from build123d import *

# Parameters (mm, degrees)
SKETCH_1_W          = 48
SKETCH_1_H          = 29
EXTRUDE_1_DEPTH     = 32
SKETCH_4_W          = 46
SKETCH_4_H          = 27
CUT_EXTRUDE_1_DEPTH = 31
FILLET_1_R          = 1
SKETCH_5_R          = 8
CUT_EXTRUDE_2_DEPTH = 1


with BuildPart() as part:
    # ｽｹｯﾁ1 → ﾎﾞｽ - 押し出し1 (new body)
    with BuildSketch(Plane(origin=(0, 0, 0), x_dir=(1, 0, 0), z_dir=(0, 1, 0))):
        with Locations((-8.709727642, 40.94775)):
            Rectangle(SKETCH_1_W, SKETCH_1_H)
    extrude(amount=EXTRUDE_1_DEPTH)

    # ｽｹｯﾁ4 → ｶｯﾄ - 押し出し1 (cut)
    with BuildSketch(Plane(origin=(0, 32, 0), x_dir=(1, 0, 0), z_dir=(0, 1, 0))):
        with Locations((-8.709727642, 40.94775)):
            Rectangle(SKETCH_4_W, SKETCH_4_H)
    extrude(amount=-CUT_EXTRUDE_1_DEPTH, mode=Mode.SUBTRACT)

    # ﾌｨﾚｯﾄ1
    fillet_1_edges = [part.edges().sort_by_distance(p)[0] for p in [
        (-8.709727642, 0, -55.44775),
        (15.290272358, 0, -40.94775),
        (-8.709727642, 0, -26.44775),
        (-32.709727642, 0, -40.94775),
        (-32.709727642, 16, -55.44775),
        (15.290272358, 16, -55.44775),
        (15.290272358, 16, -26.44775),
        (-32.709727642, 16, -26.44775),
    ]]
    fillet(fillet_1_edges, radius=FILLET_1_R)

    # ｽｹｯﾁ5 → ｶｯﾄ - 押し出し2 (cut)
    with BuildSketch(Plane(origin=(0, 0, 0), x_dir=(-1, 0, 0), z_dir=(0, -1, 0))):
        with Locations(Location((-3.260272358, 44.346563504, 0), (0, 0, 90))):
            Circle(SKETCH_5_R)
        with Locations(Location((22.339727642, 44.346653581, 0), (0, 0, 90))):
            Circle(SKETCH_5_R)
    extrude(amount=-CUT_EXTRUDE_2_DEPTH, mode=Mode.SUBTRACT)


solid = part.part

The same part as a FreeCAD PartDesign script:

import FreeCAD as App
import Part
import Sketcher

V = App.Vector


def edges_at(feature, points):
    """Names of the edges that pass closest to the given points."""
    edges = feature.Shape.Edges
    near = lambda p: min(range(len(edges)), key=lambda i: edges[i].distToShape(Part.Vertex(*p))[0])
    return sorted({f"Edge{near(p) + 1}" for p in points})


def add_polygon(sketch, points):
    """Adds a closed chain of lines whose ends are joined by coincident constraints."""
    first, n = sketch.GeometryCount, len(points)
    for a, b in zip(points, points[1:] + points[:1]):
        sketch.addGeometry(Part.LineSegment(App.Vector(*a, 0), App.Vector(*b, 0)), False)
    for i in range(n):
        sketch.addConstraint(Sketcher.Constraint("Coincident", first + i, 2, first + (i + 1) % n, 1))

doc = App.newDocument("Part")
body = doc.addObject("PartDesign::Body", "Body")

# Sketch on XZ plane
sketch1 = body.newObject("Sketcher::SketchObject", "Sketch")
sketch1.AttachmentSupport = (doc.getObject("XZ_Plane"), [""])
sketch1.MapMode = "FlatFace"
add_polygon(sketch1, [(-33, -55), (-33, -26), (15, -26), (15, -55)])  # lines 0-3
sketch1.addConstraint([
    Sketcher.Constraint("Vertical", 0),
    Sketcher.Constraint("Horizontal", 1),
    Sketcher.Constraint("Vertical", 2),
    Sketcher.Constraint("Horizontal", 3),
    Sketcher.Constraint("DistanceX", 1, 1, 1, 2, 48.0),
    Sketcher.Constraint("DistanceY", 0, 1, 0, 2, 29.0),
    Sketcher.Constraint("DistanceY", 0, 2, -1, 1, 26.44775),
    Sketcher.Constraint("DistanceX", 0, 2, -1, 1, 32.709728),
])
pad1 = body.newObject("PartDesign::Pad", "Pad")
pad1.Profile = sketch1
pad1.Length = 32
pad1.Reversed = True

# Sketch on XZ plane
sketch2 = body.newObject("Sketcher::SketchObject", "Sketch001")
sketch2.AttachmentSupport = (doc.getObject("XZ_Plane"), [""])
sketch2.MapMode = "FlatFace"
sketch2.AttachmentOffset = App.Placement(V(0, 0, -32), App.Rotation())
add_polygon(sketch2, [(-32, -54), (-32, -27), (14, -27), (14, -54)])  # lines 0-3
sketch2.addConstraint([
    Sketcher.Constraint("Vertical", 0),
    Sketcher.Constraint("Horizontal", 1),
    Sketcher.Constraint("Vertical", 2),
    Sketcher.Constraint("Horizontal", 3),
    Sketcher.Constraint("DistanceX", 1, 1, 1, 2, 46.0),
    Sketcher.Constraint("DistanceY", 0, 1, 0, 2, 27.0),
    Sketcher.Constraint("DistanceY", 0, 2, -1, 1, 27.44775),
    Sketcher.Constraint("DistanceX", 0, 2, -1, 1, 31.709728),
])
pocket1 = body.newObject("PartDesign::Pocket", "Pocket")
pocket1.Profile = sketch2
pocket1.Length = 31
pocket1.Reversed = True
doc.recompute()

fillet = body.newObject("PartDesign::Fillet", "Fillet")
fillet.Base = (pocket1, edges_at(pocket1, [
    (-8.71, 0, -55.448),
    (15.29, 0, -40.948),
    (-8.71, 0, -26.448),
    (-32.71, 0, -40.948),
    (-32.71, 16, -55.448),
    (15.29, 16, -55.448),
    (15.29, 16, -26.448),
    (-32.71, 16, -26.448),
]))
fillet.Radius = 1

# Sketch on XZ plane
sketch3 = body.newObject("Sketcher::SketchObject", "Sketch002")
sketch3.AttachmentSupport = (doc.getObject("XZ_Plane"), [""])
sketch3.MapMode = "FlatFace"
sketch3.addGeometry([
    Part.Circle(V(3, -44, 0), V(0, 0, 1), 8),
    Part.Circle(V(-22, -44, 0), V(0, 0, 1), 8),
], False)
sketch3.addConstraint([
    Sketcher.Constraint("Equal", 0, 1),
    Sketcher.Constraint("Diameter", 0, 16.0),
    Sketcher.Constraint("DistanceX", 1, 3, 0, 3, 25.6),
    Sketcher.Constraint("DistanceX", -1, 1, 0, 3, 3.260272),
    Sketcher.Constraint("DistanceY", 0, 3, -1, 1, 44.346564),
    Sketcher.Constraint("DistanceY", 1, 3, -1, 1, 44.346654),
])
pocket2 = body.newObject("PartDesign::Pocket", "Pocket001")
pocket2.Profile = sketch3
pocket2.Length = 1

doc.recompute()
